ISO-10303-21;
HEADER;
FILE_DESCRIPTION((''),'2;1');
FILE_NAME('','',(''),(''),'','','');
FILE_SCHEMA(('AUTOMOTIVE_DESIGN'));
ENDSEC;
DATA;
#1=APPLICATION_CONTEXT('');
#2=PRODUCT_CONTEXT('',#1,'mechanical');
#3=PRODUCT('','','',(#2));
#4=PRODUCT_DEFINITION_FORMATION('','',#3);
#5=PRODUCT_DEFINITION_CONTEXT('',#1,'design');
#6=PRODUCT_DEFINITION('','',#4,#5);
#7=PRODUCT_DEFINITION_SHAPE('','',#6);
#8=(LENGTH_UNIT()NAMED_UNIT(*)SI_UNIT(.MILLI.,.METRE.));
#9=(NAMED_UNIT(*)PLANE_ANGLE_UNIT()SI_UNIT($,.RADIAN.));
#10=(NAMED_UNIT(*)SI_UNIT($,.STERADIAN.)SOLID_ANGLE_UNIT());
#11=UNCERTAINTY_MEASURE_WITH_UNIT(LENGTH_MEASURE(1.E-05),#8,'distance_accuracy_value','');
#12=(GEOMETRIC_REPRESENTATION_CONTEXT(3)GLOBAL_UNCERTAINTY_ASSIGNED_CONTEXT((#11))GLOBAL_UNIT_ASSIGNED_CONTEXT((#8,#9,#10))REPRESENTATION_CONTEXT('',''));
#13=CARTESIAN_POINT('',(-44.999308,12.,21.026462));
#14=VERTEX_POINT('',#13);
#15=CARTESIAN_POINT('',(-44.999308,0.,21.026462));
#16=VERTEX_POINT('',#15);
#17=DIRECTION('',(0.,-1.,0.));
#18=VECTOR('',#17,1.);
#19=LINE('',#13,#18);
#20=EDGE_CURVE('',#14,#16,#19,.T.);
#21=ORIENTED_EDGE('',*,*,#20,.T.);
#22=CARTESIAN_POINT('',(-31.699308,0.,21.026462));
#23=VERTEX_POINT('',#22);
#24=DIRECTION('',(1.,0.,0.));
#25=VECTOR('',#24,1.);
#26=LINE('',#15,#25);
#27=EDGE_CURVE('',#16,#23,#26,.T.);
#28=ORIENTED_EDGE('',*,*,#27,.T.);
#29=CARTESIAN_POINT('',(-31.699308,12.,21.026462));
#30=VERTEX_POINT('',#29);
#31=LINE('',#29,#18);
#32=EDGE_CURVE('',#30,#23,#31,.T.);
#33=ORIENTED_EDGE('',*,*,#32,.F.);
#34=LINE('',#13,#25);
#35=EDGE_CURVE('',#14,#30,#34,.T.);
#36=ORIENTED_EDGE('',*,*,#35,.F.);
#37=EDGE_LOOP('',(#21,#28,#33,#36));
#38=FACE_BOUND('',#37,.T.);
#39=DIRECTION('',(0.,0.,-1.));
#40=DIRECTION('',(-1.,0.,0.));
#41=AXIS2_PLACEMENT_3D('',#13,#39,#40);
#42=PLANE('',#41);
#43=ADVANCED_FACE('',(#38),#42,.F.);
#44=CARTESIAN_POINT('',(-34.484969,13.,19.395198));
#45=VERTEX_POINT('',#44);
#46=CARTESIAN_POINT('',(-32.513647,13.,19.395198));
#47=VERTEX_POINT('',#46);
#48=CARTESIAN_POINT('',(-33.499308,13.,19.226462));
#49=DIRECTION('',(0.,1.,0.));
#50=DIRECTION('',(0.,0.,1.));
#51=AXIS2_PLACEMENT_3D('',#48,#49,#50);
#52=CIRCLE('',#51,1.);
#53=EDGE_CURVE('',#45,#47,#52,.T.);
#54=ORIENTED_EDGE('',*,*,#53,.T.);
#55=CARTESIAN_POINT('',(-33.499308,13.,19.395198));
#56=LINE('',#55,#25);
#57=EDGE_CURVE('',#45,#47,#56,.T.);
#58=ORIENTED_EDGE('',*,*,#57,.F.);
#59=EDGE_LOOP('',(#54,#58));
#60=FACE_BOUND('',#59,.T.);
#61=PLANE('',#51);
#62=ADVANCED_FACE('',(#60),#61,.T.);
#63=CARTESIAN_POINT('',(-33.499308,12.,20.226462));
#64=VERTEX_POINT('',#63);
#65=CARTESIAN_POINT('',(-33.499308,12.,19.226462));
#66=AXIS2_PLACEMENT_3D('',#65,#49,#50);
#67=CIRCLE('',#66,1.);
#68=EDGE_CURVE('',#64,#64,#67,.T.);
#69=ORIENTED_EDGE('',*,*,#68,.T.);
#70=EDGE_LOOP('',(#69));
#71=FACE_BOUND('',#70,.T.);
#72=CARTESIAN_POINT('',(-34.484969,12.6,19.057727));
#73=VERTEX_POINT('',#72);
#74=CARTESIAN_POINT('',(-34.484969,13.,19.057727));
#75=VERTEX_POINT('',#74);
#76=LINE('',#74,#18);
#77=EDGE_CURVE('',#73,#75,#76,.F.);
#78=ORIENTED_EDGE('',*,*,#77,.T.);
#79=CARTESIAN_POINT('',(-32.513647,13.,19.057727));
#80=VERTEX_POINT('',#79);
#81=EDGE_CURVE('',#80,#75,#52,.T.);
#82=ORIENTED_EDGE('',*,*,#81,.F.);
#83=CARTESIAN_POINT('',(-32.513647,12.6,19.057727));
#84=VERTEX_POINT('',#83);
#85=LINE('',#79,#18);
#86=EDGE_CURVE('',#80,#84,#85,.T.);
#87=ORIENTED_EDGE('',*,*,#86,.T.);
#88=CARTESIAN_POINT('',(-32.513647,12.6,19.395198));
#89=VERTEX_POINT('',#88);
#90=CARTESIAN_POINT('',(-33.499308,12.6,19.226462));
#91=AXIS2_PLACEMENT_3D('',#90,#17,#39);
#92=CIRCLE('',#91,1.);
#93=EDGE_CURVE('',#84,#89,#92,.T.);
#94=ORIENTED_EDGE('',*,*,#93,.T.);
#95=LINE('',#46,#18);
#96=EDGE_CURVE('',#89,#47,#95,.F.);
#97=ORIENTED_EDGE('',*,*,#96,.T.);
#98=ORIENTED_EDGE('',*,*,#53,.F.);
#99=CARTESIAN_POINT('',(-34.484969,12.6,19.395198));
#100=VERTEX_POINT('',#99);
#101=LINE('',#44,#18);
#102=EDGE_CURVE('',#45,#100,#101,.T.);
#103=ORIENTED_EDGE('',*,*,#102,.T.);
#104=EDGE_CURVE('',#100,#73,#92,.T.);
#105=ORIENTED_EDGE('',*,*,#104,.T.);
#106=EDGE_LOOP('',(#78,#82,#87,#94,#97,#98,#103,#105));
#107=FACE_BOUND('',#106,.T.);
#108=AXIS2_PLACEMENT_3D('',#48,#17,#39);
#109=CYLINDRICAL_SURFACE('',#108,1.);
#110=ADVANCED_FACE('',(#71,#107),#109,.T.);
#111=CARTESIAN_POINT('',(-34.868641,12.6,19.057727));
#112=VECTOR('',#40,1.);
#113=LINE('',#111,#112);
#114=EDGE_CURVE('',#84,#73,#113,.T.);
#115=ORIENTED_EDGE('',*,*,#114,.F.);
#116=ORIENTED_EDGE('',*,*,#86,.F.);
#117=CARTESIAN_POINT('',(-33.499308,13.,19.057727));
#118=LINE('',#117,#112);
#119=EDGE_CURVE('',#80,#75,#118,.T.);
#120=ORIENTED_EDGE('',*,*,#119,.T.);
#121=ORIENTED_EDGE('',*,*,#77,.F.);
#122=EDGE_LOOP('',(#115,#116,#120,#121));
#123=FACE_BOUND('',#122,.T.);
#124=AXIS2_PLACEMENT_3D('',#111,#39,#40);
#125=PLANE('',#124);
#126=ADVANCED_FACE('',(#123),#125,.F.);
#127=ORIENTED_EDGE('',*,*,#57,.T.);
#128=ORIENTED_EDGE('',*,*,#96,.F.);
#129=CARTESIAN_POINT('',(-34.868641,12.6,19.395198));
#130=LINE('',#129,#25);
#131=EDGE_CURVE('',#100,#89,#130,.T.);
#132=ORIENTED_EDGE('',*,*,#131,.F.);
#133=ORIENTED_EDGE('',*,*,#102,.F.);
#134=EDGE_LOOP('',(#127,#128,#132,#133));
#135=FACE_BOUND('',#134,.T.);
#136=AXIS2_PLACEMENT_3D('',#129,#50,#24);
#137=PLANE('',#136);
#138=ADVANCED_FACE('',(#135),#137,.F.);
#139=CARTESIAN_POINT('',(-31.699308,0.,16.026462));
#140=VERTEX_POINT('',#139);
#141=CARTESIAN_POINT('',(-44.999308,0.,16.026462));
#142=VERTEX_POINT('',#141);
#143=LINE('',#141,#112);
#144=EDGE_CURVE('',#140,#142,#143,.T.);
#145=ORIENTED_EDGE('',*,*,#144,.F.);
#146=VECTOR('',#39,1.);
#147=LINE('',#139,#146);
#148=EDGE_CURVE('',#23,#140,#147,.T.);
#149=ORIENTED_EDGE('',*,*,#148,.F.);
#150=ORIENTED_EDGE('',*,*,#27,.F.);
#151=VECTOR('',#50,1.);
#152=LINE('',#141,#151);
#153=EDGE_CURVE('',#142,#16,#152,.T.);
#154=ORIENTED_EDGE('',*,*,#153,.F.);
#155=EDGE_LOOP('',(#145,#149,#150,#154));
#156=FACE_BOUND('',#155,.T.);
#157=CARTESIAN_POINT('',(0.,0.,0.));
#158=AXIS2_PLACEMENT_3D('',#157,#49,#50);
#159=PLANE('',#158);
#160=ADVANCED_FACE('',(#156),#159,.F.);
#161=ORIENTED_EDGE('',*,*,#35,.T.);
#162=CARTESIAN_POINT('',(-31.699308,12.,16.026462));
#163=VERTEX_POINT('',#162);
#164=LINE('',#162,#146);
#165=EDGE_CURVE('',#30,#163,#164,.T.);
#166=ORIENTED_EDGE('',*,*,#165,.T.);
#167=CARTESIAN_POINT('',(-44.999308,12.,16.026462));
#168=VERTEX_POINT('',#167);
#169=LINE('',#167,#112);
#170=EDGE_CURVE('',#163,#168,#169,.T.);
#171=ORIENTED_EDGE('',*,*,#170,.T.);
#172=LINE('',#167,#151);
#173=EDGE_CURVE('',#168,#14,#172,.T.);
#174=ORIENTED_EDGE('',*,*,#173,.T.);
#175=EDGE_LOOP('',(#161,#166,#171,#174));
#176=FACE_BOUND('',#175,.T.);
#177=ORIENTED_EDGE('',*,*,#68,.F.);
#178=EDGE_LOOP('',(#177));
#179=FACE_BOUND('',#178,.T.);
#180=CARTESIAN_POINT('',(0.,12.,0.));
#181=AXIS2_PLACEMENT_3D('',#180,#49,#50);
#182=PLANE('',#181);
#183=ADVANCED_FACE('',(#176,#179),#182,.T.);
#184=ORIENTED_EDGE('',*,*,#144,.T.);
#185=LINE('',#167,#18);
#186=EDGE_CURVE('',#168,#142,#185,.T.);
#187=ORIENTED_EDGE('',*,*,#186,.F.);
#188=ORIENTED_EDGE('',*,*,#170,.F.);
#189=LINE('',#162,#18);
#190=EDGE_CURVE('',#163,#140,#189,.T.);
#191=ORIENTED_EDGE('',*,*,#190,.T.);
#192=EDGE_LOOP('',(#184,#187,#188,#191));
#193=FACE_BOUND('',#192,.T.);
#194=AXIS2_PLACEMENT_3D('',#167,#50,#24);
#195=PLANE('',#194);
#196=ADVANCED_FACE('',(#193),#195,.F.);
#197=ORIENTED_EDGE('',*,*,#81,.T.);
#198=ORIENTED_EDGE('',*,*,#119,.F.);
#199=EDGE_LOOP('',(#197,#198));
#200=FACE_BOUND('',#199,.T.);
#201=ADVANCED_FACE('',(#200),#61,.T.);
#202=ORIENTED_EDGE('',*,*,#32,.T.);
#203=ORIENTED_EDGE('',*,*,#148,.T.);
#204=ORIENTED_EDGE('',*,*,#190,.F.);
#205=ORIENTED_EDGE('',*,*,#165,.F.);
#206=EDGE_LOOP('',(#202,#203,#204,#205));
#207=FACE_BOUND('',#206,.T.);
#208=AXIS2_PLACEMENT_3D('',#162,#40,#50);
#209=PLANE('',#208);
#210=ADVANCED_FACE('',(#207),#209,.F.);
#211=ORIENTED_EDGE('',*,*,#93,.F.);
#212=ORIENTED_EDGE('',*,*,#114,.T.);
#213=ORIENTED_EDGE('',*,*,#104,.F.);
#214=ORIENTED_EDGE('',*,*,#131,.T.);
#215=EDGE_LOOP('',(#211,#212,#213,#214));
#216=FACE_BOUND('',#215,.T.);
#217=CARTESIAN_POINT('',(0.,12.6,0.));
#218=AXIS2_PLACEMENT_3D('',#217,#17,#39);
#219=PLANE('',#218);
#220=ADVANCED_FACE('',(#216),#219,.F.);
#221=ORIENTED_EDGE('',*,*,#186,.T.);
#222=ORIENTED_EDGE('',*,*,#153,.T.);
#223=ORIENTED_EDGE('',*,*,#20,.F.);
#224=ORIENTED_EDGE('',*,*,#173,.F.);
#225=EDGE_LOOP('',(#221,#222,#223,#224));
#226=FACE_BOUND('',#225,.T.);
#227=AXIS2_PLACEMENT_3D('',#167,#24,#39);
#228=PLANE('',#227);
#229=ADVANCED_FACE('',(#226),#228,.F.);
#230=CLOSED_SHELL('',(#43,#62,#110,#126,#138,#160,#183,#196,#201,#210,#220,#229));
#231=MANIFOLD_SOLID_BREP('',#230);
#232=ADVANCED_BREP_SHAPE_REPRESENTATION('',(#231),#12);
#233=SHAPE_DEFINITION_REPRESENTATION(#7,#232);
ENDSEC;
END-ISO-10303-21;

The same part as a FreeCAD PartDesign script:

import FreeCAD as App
import Part
import Sketcher

V = App.Vector


def add_polygon(sketch, points):
    """Adds a closed chain of lines whose ends are joined by coincident constraints."""
    first, n = sketch.GeometryCount, len(points)
    for a, b in zip(points, points[1:] + points[:1]):
        sketch.addGeometry(Part.LineSegment(App.Vector(*a, 0), App.Vector(*b, 0)), False)
    for i in range(n):
        sketch.addConstraint(Sketcher.Constraint("Coincident", first + i, 2, first + (i + 1) % n, 1))

doc = App.newDocument("Part")
body = doc.addObject("PartDesign::Body", "Body")

sketch1 = body.newObject("Sketcher::SketchObject", "Sketch")
sketch1.AttachmentSupport = (doc.getObject("XZ_Plane"), [""])
sketch1.MapMode = "FlatFace"
add_polygon(sketch1, [(-44.999308, 16.026462), (-44.999308, 21.026462), (-31.699308, 21.026462), (-31.699308, 16.026462)])
sketch1.addConstraint([
    Sketcher.Constraint("Vertical", 0),
    Sketcher.Constraint("Horizontal", 1),
    Sketcher.Constraint("Vertical", 2),
    Sketcher.Constraint("Horizontal", 3),
    Sketcher.Constraint("DistanceY", 0, 1, 0, 2, 5.0),
    Sketcher.Constraint("DistanceX", 1, 1, 1, 2, 13.3),
    Sketcher.Constraint("DistanceX", 0, 2, -1, 1, 44.999308),
    Sketcher.Constraint("DistanceY", -1, 1, 0, 2, 21.026462),
])
pad1 = body.newObject("PartDesign::Pad", "Pad")
pad1.Profile = sketch1
pad1.Length = 12
pad1.Reversed = True

sketch2 = body.newObject("Sketcher::SketchObject", "Sketch001")
sketch2.AttachmentSupport = (doc.getObject("XZ_Plane"), [""])
sketch2.MapMode = "FlatFace"
sketch2.AttachmentOffset = App.Placement(V(0, 0, -12), App.Rotation())
sketch2.addGeometry(Part.Circle(V(-33.499308, 19.226462, 0), V(0, 0, 1), 1), False)
sketch2.addConstraint([
    Sketcher.Constraint("Diameter", 0, 2.0),
    Sketcher.Constraint("DistanceX", 0, 3, -1, 1, 33.499308),
    Sketcher.Constraint("DistanceY", -1, 1, 0, 3, 19.226462),
])
pad2 = body.newObject("PartDesign::Pad", "Pad001")
pad2.Profile = sketch2
pad2.Length = 1
pad2.Reversed = True

sketch3 = body.newObject("Sketcher::SketchObject", "Sketch002")
sketch3.AttachmentSupport = (doc.getObject("XZ_Plane"), [""])
sketch3.MapMode = "FlatFace"
sketch3.AttachmentOffset = App.Placement(V(0, 0, -13), App.Rotation())
add_polygon(sketch3, [(-34.868641, 19.057727), (-34.868641, 19.395198), (-32.129975, 19.395198), (-32.129975, 19.057727)])
sketch3.addConstraint([
    Sketcher.Constraint("Vertical", 0),
    Sketcher.Constraint("Horizontal", 1),
    Sketcher.Constraint("Vertical", 2),
    Sketcher.Constraint("Horizontal", 3),
    Sketcher.Constraint("DistanceY", 0, 1, 0, 2, 0.337472),
    Sketcher.Constraint("DistanceY", -1, 1, 0, 2, 19.395198),
    Sketcher.Constraint("DistanceX", 1, 1, 1, 2, 2.738666),
    Sketcher.Constraint("DistanceX", 0, 2, -1, 1, 34.868641),
])
pocket1 = body.newObject("PartDesign::Pocket", "Pocket")
pocket1.Profile = sketch3
pocket1.Length = 0.4
pocket1.Reversed = True

doc.recompute()
